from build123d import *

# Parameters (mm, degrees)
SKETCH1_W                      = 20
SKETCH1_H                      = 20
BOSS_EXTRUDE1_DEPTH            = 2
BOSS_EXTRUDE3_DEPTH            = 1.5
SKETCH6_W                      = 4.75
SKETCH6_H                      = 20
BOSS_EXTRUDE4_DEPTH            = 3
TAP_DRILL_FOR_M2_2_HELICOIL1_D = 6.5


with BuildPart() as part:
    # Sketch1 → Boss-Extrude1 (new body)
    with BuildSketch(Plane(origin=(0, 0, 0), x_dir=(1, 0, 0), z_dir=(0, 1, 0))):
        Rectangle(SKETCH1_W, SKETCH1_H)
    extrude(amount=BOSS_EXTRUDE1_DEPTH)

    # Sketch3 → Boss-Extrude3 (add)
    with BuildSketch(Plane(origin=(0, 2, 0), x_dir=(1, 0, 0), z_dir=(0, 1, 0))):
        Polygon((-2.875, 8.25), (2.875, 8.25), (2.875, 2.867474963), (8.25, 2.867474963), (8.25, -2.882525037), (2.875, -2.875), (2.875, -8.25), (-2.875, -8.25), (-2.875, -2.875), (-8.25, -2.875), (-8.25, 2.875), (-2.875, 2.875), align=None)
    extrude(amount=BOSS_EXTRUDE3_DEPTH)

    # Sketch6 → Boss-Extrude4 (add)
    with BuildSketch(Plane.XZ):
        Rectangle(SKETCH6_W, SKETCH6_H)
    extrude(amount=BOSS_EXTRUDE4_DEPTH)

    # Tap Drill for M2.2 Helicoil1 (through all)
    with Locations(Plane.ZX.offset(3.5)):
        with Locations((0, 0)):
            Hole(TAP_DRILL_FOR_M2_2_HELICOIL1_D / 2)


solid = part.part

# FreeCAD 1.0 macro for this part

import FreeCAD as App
import Part
import Sketcher


def add_polygon(sketch, points):
    """Adds a closed chain of lines whose ends are joined by coincident constraints."""
    first, n = sketch.GeometryCount, len(points)
    for a, b in zip(points, points[1:] + points[:1]):
        sketch.addGeometry(Part.LineSegment(App.Vector(*a, 0), App.Vector(*b, 0)), False)
    for i in range(n):
        sketch.addConstraint(Sketcher.Constraint("Coincident", first + i, 2, first + (i + 1) % n, 1))

doc = App.newDocument("Part")
body = doc.addObject("PartDesign::Body", "Body")

# Sketch on XZ plane
sketch1 = body.newObject("Sketcher::SketchObject", "Sketch")
sketch1.AttachmentSupport = (doc.getObject("XZ_Plane"), [""])
sketch1.MapMode = "FlatFace"
add_polygon(sketch1, [(-10, -10), (-10, 10), (10, 10), (10, -10)])  # lines 0-3
sketch1.addConstraint([
    Sketcher.Constraint("Vertical", 0),
    Sketcher.Constraint("Horizontal", 1),
    Sketcher.Constraint("Vertical", 2),
    Sketcher.Constraint("Horizontal", 3),
    Sketcher.Constraint("Symmetric", 0, 2, 2, 2, -1, 1),
    Sketcher.Constraint("Equal", 3, 0),
    Sketcher.Constraint("DistanceX", 1, 1, 1, 2, 20.0),
])
pad1 = body.newObject("PartDesign::Pad", "Pad")
pad1.Profile = sketch1
pad1.Length = 2
pad1.Reversed = True

# Sketch on XZ plane
sketch2 = body.newObject("Sketcher::SketchObject", "Sketch001")
sketch2.AttachmentSupport = (doc.getObject("XZ_Plane"), [""])
sketch2.MapMode = "FlatFace"
sketch2.AttachmentOffset = App.Placement(App.Vector(0, 0, -2), App.Rotation())
add_polygon(sketch2, [(3, -8), (-3, -8), (-3, -3), (-8, -3), (-8, 3), (-3, 3), (-3, 8), (3, 8), (3, 3), (8, 3), (8, -3), (3, -3)])  # lines 0-11
sketch2.addConstraint([
    Sketcher.Constraint("Horizontal", 0),
    Sketcher.Constraint("Vertical", 1),
    Sketcher.Constraint("Horizontal", 2),
    Sketcher.Constraint("Vertical", 3),
    Sketcher.Constraint("Horizontal", 4),
    Sketcher.Constraint("Vertical", 5),
    Sketcher.Constraint("Horizontal", 6),
    Sketcher.Constraint("Vertical", 7),
    Sketcher.Constraint("Vertical", 9),
    Sketcher.Constraint("Horizontal", 10),
    Sketcher.Constraint("Vertical", 11),
    Sketcher.Constraint("Symmetric", 0, 2, 6, 2, -1, 1),
    Sketcher.Constraint("Symmetric", 4, 2, 7, 2, -2),
    Sketcher.Constraint("Vertical", 7, 2, 10, 2),
    Sketcher.Constraint("Equal", 4, 10),
    Sketcher.Constraint("Equal", 10, 1),
    Sketcher.Constraint("Equal", 6, 3),
    Sketcher.Constraint("Equal", 1, 5),
    Sketcher.Constraint("Equal", 3, 9),
    Sketcher.Constraint("DistanceX", 0, 2, 0, 1, 5.75),
    Sketcher.Constraint("DistanceY", 0, 2, 5, 2, 16.5),
    Sketcher.Constraint("DistanceY", 11, 2, 11, 1, 5.382525),
])
pad2 = body.newObject("PartDesign::Pad", "Pad001")
pad2.Profile = sketch2
pad2.Length = 1.5
pad2.Reversed = True

# Sketch on XZ plane
sketch3 = body.newObject("Sketcher::SketchObject", "Sketch002")
sketch3.AttachmentSupport = (doc.getObject("XZ_Plane"), [""])
sketch3.MapMode = "FlatFace"
add_polygon(sketch3, [(-2.4, 10), (-2.4, -10), (2.4, -10), (2.4, 10)])  # lines 0-3
sketch3.addConstraint([
    Sketcher.Constraint("Vertical", 0),
    Sketcher.Constraint("Horizontal", 1),
    Sketcher.Constraint("Vertical", 2),
    Sketcher.Constraint("Horizontal", 3),
    Sketcher.Constraint("Symmetric", 0, 2, 2, 2, -1, 1),
    Sketcher.Constraint("DistanceY", 0, 2, 0, 1, 20.0),
    Sketcher.Constraint("DistanceX", 1, 1, 1, 2, 4.75),
])
pad3 = body.newObject("PartDesign::Pad", "Pad002")
pad3.Profile = sketch3
pad3.Length = 3

# Sketch on XZ plane
sketch4 = body.newObject("Sketcher::SketchObject", "Sketch003")
sketch4.AttachmentSupport = (doc.getObject("XZ_Plane"), [""])
sketch4.MapMode = "FlatFace"
sketch4.AttachmentOffset = App.Placement(App.Vector(0, 0, -3.5), App.Rotation())
sketch4.addGeometry(Part.Circle(App.Vector(0, 0, 0), App.Vector(0, 0, 1), 3.2), False)
sketch4.addConstraint([
    Sketcher.Constraint("Coincident", 0, 3, -1, 1),
    Sketcher.Constraint("Diameter", 0, 6.5),
])
doc.recompute()
hole = body.newObject("PartDesign::Hole", "Hole")
hole.Profile = sketch4
hole.ThreadType = "None"
hole.Diameter = 6.5
hole.DepthType = "ThroughAll"
hole.Reversed = True

doc.recompute()
